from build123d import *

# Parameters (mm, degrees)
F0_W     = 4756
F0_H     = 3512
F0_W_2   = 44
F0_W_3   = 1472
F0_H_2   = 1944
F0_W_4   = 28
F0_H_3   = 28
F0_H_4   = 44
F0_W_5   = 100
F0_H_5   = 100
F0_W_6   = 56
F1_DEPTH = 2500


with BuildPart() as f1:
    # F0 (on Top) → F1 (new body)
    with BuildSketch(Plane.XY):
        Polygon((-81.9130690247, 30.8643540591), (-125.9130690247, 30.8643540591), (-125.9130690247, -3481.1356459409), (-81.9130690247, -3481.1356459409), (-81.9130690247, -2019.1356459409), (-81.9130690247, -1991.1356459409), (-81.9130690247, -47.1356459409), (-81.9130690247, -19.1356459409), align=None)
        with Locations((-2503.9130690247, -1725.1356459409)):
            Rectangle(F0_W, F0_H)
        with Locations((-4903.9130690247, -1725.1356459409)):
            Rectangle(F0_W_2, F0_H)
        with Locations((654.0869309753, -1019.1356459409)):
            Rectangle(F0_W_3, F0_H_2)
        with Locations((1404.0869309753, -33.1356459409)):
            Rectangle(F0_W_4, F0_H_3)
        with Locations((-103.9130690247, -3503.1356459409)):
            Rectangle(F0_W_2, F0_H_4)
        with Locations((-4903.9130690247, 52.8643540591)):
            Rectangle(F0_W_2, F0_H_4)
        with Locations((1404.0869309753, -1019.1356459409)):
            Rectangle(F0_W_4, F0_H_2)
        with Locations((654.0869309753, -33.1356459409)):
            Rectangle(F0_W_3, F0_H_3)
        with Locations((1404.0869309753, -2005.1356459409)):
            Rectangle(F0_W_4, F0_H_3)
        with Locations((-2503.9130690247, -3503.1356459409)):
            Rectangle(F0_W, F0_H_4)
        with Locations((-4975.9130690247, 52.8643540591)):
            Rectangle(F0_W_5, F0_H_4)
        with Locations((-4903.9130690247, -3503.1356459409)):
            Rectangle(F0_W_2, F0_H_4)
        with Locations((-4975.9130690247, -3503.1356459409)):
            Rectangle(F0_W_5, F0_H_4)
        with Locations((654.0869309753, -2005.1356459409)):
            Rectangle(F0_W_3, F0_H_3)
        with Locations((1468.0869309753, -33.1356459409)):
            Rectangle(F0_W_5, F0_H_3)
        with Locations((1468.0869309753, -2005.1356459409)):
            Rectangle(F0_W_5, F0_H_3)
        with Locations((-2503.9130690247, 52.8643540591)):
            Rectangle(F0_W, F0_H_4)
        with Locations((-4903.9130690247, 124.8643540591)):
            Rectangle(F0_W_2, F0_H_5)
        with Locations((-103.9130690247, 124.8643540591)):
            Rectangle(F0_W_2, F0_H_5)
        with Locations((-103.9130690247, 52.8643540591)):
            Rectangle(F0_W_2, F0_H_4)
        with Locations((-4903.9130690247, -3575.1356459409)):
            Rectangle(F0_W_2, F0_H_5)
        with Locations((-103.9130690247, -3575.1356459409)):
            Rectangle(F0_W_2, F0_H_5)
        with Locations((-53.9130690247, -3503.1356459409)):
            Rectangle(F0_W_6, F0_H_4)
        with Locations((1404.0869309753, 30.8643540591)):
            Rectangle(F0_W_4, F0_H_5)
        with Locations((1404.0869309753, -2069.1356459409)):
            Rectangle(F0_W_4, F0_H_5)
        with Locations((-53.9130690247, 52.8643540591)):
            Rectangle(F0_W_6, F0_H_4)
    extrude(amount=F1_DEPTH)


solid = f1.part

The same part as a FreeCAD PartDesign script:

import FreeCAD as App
import Part
import Sketcher
from FreeCAD import Vector
Q = App.Units.Quantity

doc = App.newDocument("Part")
body = doc.addObject("PartDesign::Body", "Body")

# Sketch on XY plane
sketch1 = body.newObject("Sketcher::SketchObject", "Sketch")
sketch1.AttachmentSupport = (doc.getObject("XY_Plane"), [""])
sketch1.MapMode = "FlatFace"
sketch1.addGeometry(Part.LineSegment(Vector(-125.913069, 74.864354, 0), Vector(-4881.913069, 74.864354, 0)), False)
sketch1.addGeometry(Part.LineSegment(Vector(-4881.913069, 74.864354, 0), Vector(-4881.913069, 174.864354, 0)), False)
sketch1.addGeometry(Part.LineSegment(Vector(-4881.913069, 174.864354, 0), Vector(-4925.913069, 174.864354, 0)), False)
sketch1.addGeometry(Part.LineSegment(Vector(-4925.913069, 174.864354, 0), Vector(-4925.913069, 74.864354, 0)), False)
sketch1.addGeometry(Part.LineSegment(Vector(-4925.913069, 74.864354, 0), Vector(-5025.913069, 74.864354, 0)), False)
sketch1.addGeometry(Part.LineSegment(Vector(-5025.913069, 74.864354, 0), Vector(-5025.913069, 30.864354, 0)), False)
sketch1.addGeometry(Part.LineSegment(Vector(-5025.913069, 30.864354, 0), Vector(-4925.913069, 30.864354, 0)), False)
sketch1.addGeometry(Part.LineSegment(Vector(-4925.913069, 30.864354, 0), Vector(-4925.913069, -3481.135646, 0)), False)
sketch1.addGeometry(Part.LineSegment(Vector(-4925.913069, -3481.135646, 0), Vector(-5025.913069, -3481.135646, 0)), False)
sketch1.addGeometry(Part.LineSegment(Vector(-5025.913069, -3481.135646, 0), Vector(-5025.913069, -3525.135646, 0)), False)
sketch1.addGeometry(Part.LineSegment(Vector(-5025.913069, -3525.135646, 0), Vector(-4925.913069, -3525.135646, 0)), False)
sketch1.addGeometry(Part.LineSegment(Vector(-4925.913069, -3525.135646, 0), Vector(-4925.913069, -3625.135646, 0)), False)
sketch1.addGeometry(Part.LineSegment(Vector(-4925.913069, -3625.135646, 0), Vector(-4881.913069, -3625.135646, 0)), False)
sketch1.addGeometry(Part.LineSegment(Vector(-4881.913069, -3625.135646, 0), Vector(-4881.913069, -3525.135646, 0)), False)
sketch1.addGeometry(Part.LineSegment(Vector(-4881.913069, -3525.135646, 0), Vector(-125.913069, -3525.135646, 0)), False)
sketch1.addGeometry(Part.LineSegment(Vector(-125.913069, -3525.135646, 0), Vector(-125.913069, -3625.135646, 0)), False)
sketch1.addGeometry(Part.LineSegment(Vector(-125.913069, -3625.135646, 0), Vector(-81.913069, -3625.135646, 0)), False)
sketch1.addGeometry(Part.LineSegment(Vector(-81.913069, -3625.135646, 0), Vector(-81.913069, -3525.135646, 0)), False)
sketch1.addGeometry(Part.LineSegment(Vector(-81.913069, -3525.135646, 0), Vector(-25.913069, -3525.135646, 0)), False)
sketch1.addGeometry(Part.LineSegment(Vector(-25.913069, -3525.135646, 0), Vector(-25.913069, -3481.135646, 0)), False)
sketch1.addGeometry(Part.LineSegment(Vector(-25.913069, -3481.135646, 0), Vector(-81.913069, -3481.135646, 0)), False)
sketch1.addGeometry(Part.LineSegment(Vector(-81.913069, -3481.135646, 0), Vector(-81.913069, -2019.135646, 0)), False)
sketch1.addGeometry(Part.LineSegment(Vector(-81.913069, -2019.135646, 0), Vector(1390.086931, -2019.135646, 0)), False)
sketch1.addGeometry(Part.LineSegment(Vector(1390.086931, -2019.135646, 0), Vector(1390.086931, -2119.135646, 0)), False)
sketch1.addGeometry(Part.LineSegment(Vector(1390.086931, -2119.135646, 0), Vector(1418.086931, -2119.135646, 0)), False)
sketch1.addGeometry(Part.LineSegment(Vector(1418.086931, -2119.135646, 0), Vector(1418.086931, -2019.135646, 0)), False)
sketch1.addGeometry(Part.LineSegment(Vector(1418.086931, -2019.135646, 0), Vector(1518.086931, -2019.135646, 0)), False)
sketch1.addGeometry(Part.LineSegment(Vector(1518.086931, -2019.135646, 0), Vector(1518.086931, -1991.135646, 0)), False)
sketch1.addGeometry(Part.LineSegment(Vector(1518.086931, -1991.135646, 0), Vector(1418.086931, -1991.135646, 0)), False)
sketch1.addGeometry(Part.LineSegment(Vector(1418.086931, -1991.135646, 0), Vector(1418.086931, -47.135646, 0)), False)
sketch1.addGeometry(Part.LineSegment(Vector(1418.086931, -47.135646, 0), Vector(1518.086931, -47.135646, 0)), False)
sketch1.addGeometry(Part.LineSegment(Vector(1518.086931, -47.135646, 0), Vector(1518.086931, -19.135646, 0)), False)
sketch1.addGeometry(Part.LineSegment(Vector(1518.086931, -19.135646, 0), Vector(1418.086931, -19.135646, 0)), False)
sketch1.addGeometry(Part.LineSegment(Vector(1418.086931, -19.135646, 0), Vector(1418.086931, 80.864354, 0)), False)
sketch1.addGeometry(Part.LineSegment(Vector(1418.086931, 80.864354, 0), Vector(1390.086931, 80.864354, 0)), False)
sketch1.addGeometry(Part.LineSegment(Vector(1390.086931, 80.864354, 0), Vector(1390.086931, -19.135646, 0)), False)
sketch1.addGeometry(Part.LineSegment(Vector(1390.086931, -19.135646, 0), Vector(-81.913069, -19.135646, 0)), False)
sketch1.addGeometry(Part.LineSegment(Vector(-81.913069, -19.135646, 0), Vector(-81.913069, 30.864354, 0)), False)
sketch1.addGeometry(Part.LineSegment(Vector(-81.913069, 30.864354, 0), Vector(-25.913069, 30.864354, 0)), False)
sketch1.addGeometry(Part.LineSegment(Vector(-25.913069, 30.864354, 0), Vector(-25.913069, 74.864354, 0)), False)
sketch1.addGeometry(Part.LineSegment(Vector(-25.913069, 74.864354, 0), Vector(-81.913069, 74.864354, 0)), False)
sketch1.addGeometry(Part.LineSegment(Vector(-81.913069, 74.864354, 0), Vector(-81.913069, 174.864354, 0)), False)
sketch1.addGeometry(Part.LineSegment(Vector(-81.913069, 174.864354, 0), Vector(-125.913069, 174.864354, 0)), False)
sketch1.addGeometry(Part.LineSegment(Vector(-125.913069, 174.864354, 0), Vector(-125.913069, 74.864354, 0)), False)
sketch1.addConstraint(Sketcher.Constraint("Coincident", 0, 2, 1, 1))
sketch1.addConstraint(Sketcher.Constraint("Coincident", 1, 2, 2, 1))
sketch1.addConstraint(Sketcher.Constraint("Coincident", 2, 2, 3, 1))
sketch1.addConstraint(Sketcher.Constraint("Coincident", 3, 2, 4, 1))
sketch1.addConstraint(Sketcher.Constraint("Coincident", 4, 2, 5, 1))
sketch1.addConstraint(Sketcher.Constraint("Coincident", 5, 2, 6, 1))
sketch1.addConstraint(Sketcher.Constraint("Coincident", 6, 2, 7, 1))
sketch1.addConstraint(Sketcher.Constraint("Coincident", 7, 2, 8, 1))
sketch1.addConstraint(Sketcher.Constraint("Coincident", 8, 2, 9, 1))
sketch1.addConstraint(Sketcher.Constraint("Coincident", 9, 2, 10, 1))
sketch1.addConstraint(Sketcher.Constraint("Coincident", 10, 2, 11, 1))
sketch1.addConstraint(Sketcher.Constraint("Coincident", 11, 2, 12, 1))
sketch1.addConstraint(Sketcher.Constraint("Coincident", 12, 2, 13, 1))
sketch1.addConstraint(Sketcher.Constraint("Coincident", 13, 2, 14, 1))
sketch1.addConstraint(Sketcher.Constraint("Coincident", 14, 2, 15, 1))
sketch1.addConstraint(Sketcher.Constraint("Coincident", 15, 2, 16, 1))
sketch1.addConstraint(Sketcher.Constraint("Coincident", 16, 2, 17, 1))
sketch1.addConstraint(Sketcher.Constraint("Coincident", 17, 2, 18, 1))
sketch1.addConstraint(Sketcher.Constraint("Coincident", 18, 2, 19, 1))
sketch1.addConstraint(Sketcher.Constraint("Coincident", 19, 2, 20, 1))
sketch1.addConstraint(Sketcher.Constraint("Coincident", 20, 2, 21, 1))
sketch1.addConstraint(Sketcher.Constraint("Coincident", 21, 2, 22, 1))
sketch1.addConstraint(Sketcher.Constraint("Coincident", 22, 2, 23, 1))
sketch1.addConstraint(Sketcher.Constraint("Coincident", 23, 2, 24, 1))
sketch1.addConstraint(Sketcher.Constraint("Coincident", 24, 2, 25, 1))
sketch1.addConstraint(Sketcher.Constraint("Coincident", 25, 2, 26, 1))
sketch1.addConstraint(Sketcher.Constraint("Coincident", 26, 2, 27, 1))
sketch1.addConstraint(Sketcher.Constraint("Coincident", 27, 2, 28, 1))
sketch1.addConstraint(Sketcher.Constraint("Coincident", 28, 2, 29, 1))
sketch1.addConstraint(Sketcher.Constraint("Coincident", 29, 2, 30, 1))
sketch1.addConstraint(Sketcher.Constraint("Coincident", 30, 2, 31, 1))
sketch1.addConstraint(Sketcher.Constraint("Coincident", 31, 2, 32, 1))
sketch1.addConstraint(Sketcher.Constraint("Coincident", 32, 2, 33, 1))
sketch1.addConstraint(Sketcher.Constraint("Coincident", 33, 2, 34, 1))
sketch1.addConstraint(Sketcher.Constraint("Coincident", 34, 2, 35, 1))
sketch1.addConstraint(Sketcher.Constraint("Coincident", 35, 2, 36, 1))
sketch1.addConstraint(Sketcher.Constraint("Coincident", 36, 2, 37, 1))
sketch1.addConstraint(Sketcher.Constraint("Coincident", 37, 2, 38, 1))
sketch1.addConstraint(Sketcher.Constraint("Coincident", 38, 2, 39, 1))
sketch1.addConstraint(Sketcher.Constraint("Coincident", 39, 2, 40, 1))
sketch1.addConstraint(Sketcher.Constraint("Coincident", 40, 2, 41, 1))
sketch1.addConstraint(Sketcher.Constraint("Coincident", 41, 2, 42, 1))
sketch1.addConstraint(Sketcher.Constraint("Coincident", 42, 2, 43, 1))
sketch1.addConstraint(Sketcher.Constraint("Coincident", 43, 2, 0, 1))
sketch1.addConstraint(Sketcher.Constraint("Horizontal", 0))
sketch1.addConstraint(Sketcher.Constraint("Vertical", 1))
sketch1.addConstraint(Sketcher.Constraint("Horizontal", 2))
sketch1.addConstraint(Sketcher.Constraint("Vertical", 3))
sketch1.addConstraint(Sketcher.Constraint("Horizontal", 4))
sketch1.addConstraint(Sketcher.Constraint("Vertical", 5))
sketch1.addConstraint(Sketcher.Constraint("Horizontal", 6))
sketch1.addConstraint(Sketcher.Constraint("Vertical", 7))
sketch1.addConstraint(Sketcher.Constraint("Horizontal", 8))
sketch1.addConstraint(Sketcher.Constraint("Vertical", 9))
sketch1.addConstraint(Sketcher.Constraint("Horizontal", 10))
sketch1.addConstraint(Sketcher.Constraint("Vertical", 11))
sketch1.addConstraint(Sketcher.Constraint("Horizontal", 12))
sketch1.addConstraint(Sketcher.Constraint("Vertical", 13))
sketch1.addConstraint(Sketcher.Constraint("Horizontal", 14))
sketch1.addConstraint(Sketcher.Constraint("Vertical", 15))
sketch1.addConstraint(Sketcher.Constraint("Horizontal", 16))
sketch1.addConstraint(Sketcher.Constraint("Vertical", 17))
sketch1.addConstraint(Sketcher.Constraint("Horizontal", 18))
sketch1.addConstraint(Sketcher.Constraint("Vertical", 19))
sketch1.addConstraint(Sketcher.Constraint("Horizontal", 20))
sketch1.addConstraint(Sketcher.Constraint("Vertical", 21))
sketch1.addConstraint(Sketcher.Constraint("Horizontal", 22))
sketch1.addConstraint(Sketcher.Constraint("Vertical", 23))
sketch1.addConstraint(Sketcher.Constraint("Horizontal", 24))
sketch1.addConstraint(Sketcher.Constraint("Vertical", 25))
sketch1.addConstraint(Sketcher.Constraint("Horizontal", 26))
sketch1.addConstraint(Sketcher.Constraint("Vertical", 27))
sketch1.addConstraint(Sketcher.Constraint("Horizontal", 28))
sketch1.addConstraint(Sketcher.Constraint("Vertical", 29))
sketch1.addConstraint(Sketcher.Constraint("Horizontal", 30))
sketch1.addConstraint(Sketcher.Constraint("Vertical", 31))
sketch1.addConstraint(Sketcher.Constraint("Horizontal", 32))
sketch1.addConstraint(Sketcher.Constraint("Vertical", 33))
sketch1.addConstraint(Sketcher.Constraint("Horizontal", 34))
sketch1.addConstraint(Sketcher.Constraint("Vertical", 35))
sketch1.addConstraint(Sketcher.Constraint("Horizontal", 36))
sketch1.addConstraint(Sketcher.Constraint("Vertical", 37))
sketch1.addConstraint(Sketcher.Constraint("Horizontal", 38))
sketch1.addConstraint(Sketcher.Constraint("Vertical", 39))
sketch1.addConstraint(Sketcher.Constraint("Horizontal", 40))
sketch1.addConstraint(Sketcher.Constraint("Vertical", 41))
sketch1.addConstraint(Sketcher.Constraint("Horizontal", 42))
sketch1.addConstraint(Sketcher.Constraint("Vertical", 43))
sketch1.addConstraint(Sketcher.Constraint("Horizontal", 0, 2, 3, 2))
sketch1.addConstraint(Sketcher.Constraint("Horizontal", 10, 2, 13, 2))
sketch1.addConstraint(Sketcher.Constraint("Horizontal", 12, 2, 15, 2))
sketch1.addConstraint(Sketcher.Constraint("Horizontal", 14, 2, 17, 2))
sketch1.addConstraint(Sketcher.Constraint("Horizontal", 8, 2, 19, 2))
sketch1.addConstraint(Sketcher.Constraint("Horizontal", 22, 2, 25, 2))
sketch1.addConstraint(Sketcher.Constraint("Horizontal", 32, 2, 35, 2))
sketch1.addConstraint(Sketcher.Constraint("Horizontal", 6, 2, 37, 2))
sketch1.addConstraint(Sketcher.Constraint("Horizontal", 4, 2, 39, 2))
sketch1.addConstraint(Sketcher.Constraint("Horizontal", 2, 2, 41, 2))
sketch1.addConstraint(Sketcher.Constraint("Vertical", 3, 2, 6, 2))
sketch1.addConstraint(Sketcher.Constraint("Vertical", 5, 2, 8, 2))
sketch1.addConstraint(Sketcher.Constraint("Vertical", 7, 2, 10, 2))
sketch1.addConstraint(Sketcher.Constraint("Vertical", 1, 2, 12, 2))
sketch1.addConstraint(Sketcher.Constraint("Vertical", 17, 2, 20, 2))
sketch1.addConstraint(Sketcher.Constraint("Vertical", 25, 2, 28, 2))
sketch1.addConstraint(Sketcher.Constraint("Vertical", 27, 2, 30, 2))
sketch1.addConstraint(Sketcher.Constraint("Vertical", 29, 2, 32, 2))
sketch1.addConstraint(Sketcher.Constraint("Vertical", 23, 2, 34, 2))
sketch1.addConstraint(Sketcher.Constraint("Vertical", 21, 2, 36, 2))
sketch1.addConstraint(Sketcher.Constraint("Vertical", 19, 2, 38, 2))
sketch1.addConstraint(Sketcher.Constraint("Vertical", 37, 2, 40, 2))
sketch1.addConstraint(Sketcher.Constraint("Vertical", 15, 2, 42, 2))
sketch1.addConstraint(Sketcher.Constraint("Equal", 12, 16))
sketch1.addConstraint(Sketcher.Constraint("Equal", 10, 26))
sketch1.addConstraint(Sketcher.Constraint("Equal", 32, 1))
sketch1.addConstraint(Sketcher.Constraint("Equal", 42, 5))
sketch1.addConstraint(Sketcher.Constraint("Equal", 5, 9))
sketch1.addConstraint(Sketcher.Constraint("Equal", 3, 11))
sketch1.addConstraint(Sketcher.Constraint("Equal", 17, 23))
sketch1.addConstraint(Sketcher.Constraint("Equal", 34, 27))
sketch1.addConstraint(Sketcher.Constraint("Equal", 27, 31))
sketch1.addConstraint(Sketcher.Constraint("Equal", 25, 33))
sketch1.addConstraint(Sketcher.Constraint("DistanceX", 0, 2, 0, 1, Q("4756 mm")))
sketch1.addConstraint(Sketcher.Constraint("DistanceX", 2, 2, 2, 1, Q("44 mm")))
sketch1.addConstraint(Sketcher.Constraint("DistanceX", 4, 2, 4, 1, Q("100 mm")))
sketch1.addConstraint(Sketcher.Constraint("DistanceX", 18, 1, 18, 2, Q("56 mm")))
sketch1.addConstraint(Sketcher.Constraint("DistanceX", 22, 1, 22, 2, Q("1472 mm")))
sketch1.addConstraint(Sketcher.Constraint("DistanceX", 24, 1, 24, 2, Q("28 mm")))
sketch1.addConstraint(Sketcher.Constraint("DistanceY", 7, 2, 7, 1, Q("3512 mm")))
sketch1.addConstraint(Sketcher.Constraint("DistanceY", 21, 1, 21, 2, Q("1462 mm")))
sketch1.addConstraint(Sketcher.Constraint("DistanceY", 29, 1, 29, 2, Q("1944 mm")))
sketch1.addConstraint(Sketcher.Constraint("DistanceX", 0, 2, -1, 1, Q("4881.913069 mm")))
sketch1.addConstraint(Sketcher.Constraint("DistanceY", -1, 1, 0, 2, Q("74.864354 mm")))
pad1 = body.newObject("PartDesign::Pad", "Pad")
pad1.Profile = sketch1
pad1.Length = 2500

doc.recompute()
